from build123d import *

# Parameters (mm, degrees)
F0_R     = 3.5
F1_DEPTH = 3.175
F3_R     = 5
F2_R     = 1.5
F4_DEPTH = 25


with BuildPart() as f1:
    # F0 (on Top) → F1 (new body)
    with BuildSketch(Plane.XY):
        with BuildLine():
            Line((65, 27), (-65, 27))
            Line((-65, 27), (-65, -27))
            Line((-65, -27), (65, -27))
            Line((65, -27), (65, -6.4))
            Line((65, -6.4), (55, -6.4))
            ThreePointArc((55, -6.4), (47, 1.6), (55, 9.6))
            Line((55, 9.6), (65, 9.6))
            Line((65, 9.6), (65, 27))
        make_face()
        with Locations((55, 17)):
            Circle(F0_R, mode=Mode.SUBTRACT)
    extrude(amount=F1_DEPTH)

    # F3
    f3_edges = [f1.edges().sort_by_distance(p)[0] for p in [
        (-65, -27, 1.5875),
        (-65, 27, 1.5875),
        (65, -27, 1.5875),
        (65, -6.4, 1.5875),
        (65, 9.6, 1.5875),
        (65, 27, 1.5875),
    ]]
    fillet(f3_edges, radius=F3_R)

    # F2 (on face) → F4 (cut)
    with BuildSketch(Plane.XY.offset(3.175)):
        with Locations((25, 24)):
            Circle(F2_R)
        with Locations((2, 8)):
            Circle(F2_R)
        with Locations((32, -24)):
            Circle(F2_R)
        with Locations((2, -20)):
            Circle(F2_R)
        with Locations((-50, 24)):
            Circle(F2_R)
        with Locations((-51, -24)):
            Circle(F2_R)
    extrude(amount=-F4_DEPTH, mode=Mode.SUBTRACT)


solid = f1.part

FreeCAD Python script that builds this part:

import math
import FreeCAD as App
import Part
import Sketcher


def edges_at(feature, points):
    """Names of the edges that pass closest to the given points."""
    edges = feature.Shape.Edges
    near = lambda p: min(range(len(edges)), key=lambda i: edges[i].distToShape(Part.Vertex(*p))[0])
    return sorted({f"Edge{near(p) + 1}" for p in points})

doc = App.newDocument("Part")
body = doc.addObject("PartDesign::Body", "Body")

sketch1 = body.newObject("Sketcher::SketchObject", "Sketch")
sketch1.AttachmentSupport = (doc.getObject("XY_Plane"), [""])
sketch1.MapMode = "FlatFace"
sketch1.addGeometry(Part.LineSegment(App.Vector(65, 27, 0), App.Vector(-65, 27, 0)), False)
sketch1.addGeometry(Part.LineSegment(App.Vector(-65, 27, 0), App.Vector(-65, -27, 0)), False)
sketch1.addGeometry(Part.LineSegment(App.Vector(-65, -27, 0), App.Vector(65, -27, 0)), False)
sketch1.addGeometry(Part.LineSegment(App.Vector(65, -27, 0), App.Vector(65, -6.4, 0)), False)
sketch1.addGeometry(Part.LineSegment(App.Vector(65, -6.4, 0), App.Vector(55, -6.4, 0)), False)
sketch1.addGeometry(Part.ArcOfCircle(Part.Circle(App.Vector(55, 1.6, 0), App.Vector(0, 0, 1), 8), math.radians(90), math.radians(270)), False)
sketch1.addGeometry(Part.LineSegment(App.Vector(55, 9.6, 0), App.Vector(65, 9.6, 0)), False)
sketch1.addGeometry(Part.LineSegment(App.Vector(65, 9.6, 0), App.Vector(65, 27, 0)), False)
sketch1.addGeometry(Part.Circle(App.Vector(55, 17, 0), App.Vector(0, 0, 1), 3.5), False)
sketch1.addConstraint(Sketcher.Constraint("Coincident", 0, 2, 1, 1))
sketch1.addConstraint(Sketcher.Constraint("Coincident", 1, 2, 2, 1))
sketch1.addConstraint(Sketcher.Constraint("Coincident", 2, 2, 3, 1))
sketch1.addConstraint(Sketcher.Constraint("Coincident", 3, 2, 4, 1))
sketch1.addConstraint(Sketcher.Constraint("Tangent", 4, 2, 5, 2))
sketch1.addConstraint(Sketcher.Constraint("Tangent", 5, 1, 6, 1))
sketch1.addConstraint(Sketcher.Constraint("Coincident", 6, 2, 7, 1))
sketch1.addConstraint(Sketcher.Constraint("Coincident", 7, 2, 0, 1))
sketch1.addConstraint(Sketcher.Constraint("Horizontal", 0))
sketch1.addConstraint(Sketcher.Constraint("Vertical", 1))
sketch1.addConstraint(Sketcher.Constraint("Horizontal", 2))
sketch1.addConstraint(Sketcher.Constraint("Vertical", 3))
sketch1.addConstraint(Sketcher.Constraint("Horizontal", 4))
sketch1.addConstraint(Sketcher.Constraint("Horizontal", 6))
sketch1.addConstraint(Sketcher.Constraint("Vertical", 7))
sketch1.addConstraint(Sketcher.Constraint("Symmetric", 0, 2, 2, 2, -1, 1))
sketch1.addConstraint(Sketcher.Constraint("Vertical", 5, 3, 8, 3))
sketch1.addConstraint(Sketcher.Constraint("Vertical", 3, 2, 6, 2))
sketch1.addConstraint(Sketcher.Constraint("Diameter", 8, 7.0))
sketch1.addConstraint(Sketcher.Constraint("Radius", 5, 8.0))
sketch1.addConstraint(Sketcher.Constraint("DistanceX", 0, 2, 0, 1, 130.0))
sketch1.addConstraint(Sketcher.Constraint("DistanceX", 4, 2, 4, 1, 10.0))
sketch1.addConstraint(Sketcher.Constraint("DistanceY", 1, 2, 1, 1, 54.0))
sketch1.addConstraint(Sketcher.Constraint("DistanceY", 3, 1, 3, 2, 20.6))
sketch1.addConstraint(Sketcher.Constraint("DistanceY", -1, 1, 8, 3, 17.0))
pad1 = body.newObject("PartDesign::Pad", "Pad")
pad1.Profile = sketch1
pad1.Length = 3.175
doc.recompute()

fillet = body.newObject("PartDesign::Fillet", "Fillet")
fillet.Base = (pad1, edges_at(pad1, [
    (-65, -27, 1.587),
    (-65, 27, 1.587),
    (65, -27, 1.587),
    (65, -6.4, 1.587),
    (65, 9.6, 1.587),
    (65, 27, 1.587),
]))
fillet.Radius = 5

sketch2 = body.newObject("Sketcher::SketchObject", "Sketch001")
sketch2.AttachmentSupport = (doc.getObject("XY_Plane"), [""])
sketch2.MapMode = "FlatFace"
sketch2.AttachmentOffset = App.Placement(App.Vector(0, 0, 3.175), App.Rotation())
sketch2.addGeometry(Part.Circle(App.Vector(25, 24, 0), App.Vector(0, 0, 1), 1.5), False)
sketch2.addGeometry(Part.Circle(App.Vector(2, 8, 0), App.Vector(0, 0, 1), 1.5), False)
sketch2.addGeometry(Part.Circle(App.Vector(32, -24, 0), App.Vector(0, 0, 1), 1.5), False)
sketch2.addGeometry(Part.Circle(App.Vector(2, -20, 0), App.Vector(0, 0, 1), 1.5), False)
sketch2.addGeometry(Part.Circle(App.Vector(-50, 24, 0), App.Vector(0, 0, 1), 1.5), False)
sketch2.addGeometry(Part.Circle(App.Vector(-51, -24, 0), App.Vector(0, 0, 1), 1.5), False)
sketch2.addConstraint(Sketcher.Constraint("Equal", 0, 1))
sketch2.addConstraint(Sketcher.Constraint("Equal", 1, 2))
sketch2.addConstraint(Sketcher.Constraint("Equal", 2, 3))
sketch2.addConstraint(Sketcher.Constraint("Equal", 3, 4))
sketch2.addConstraint(Sketcher.Constraint("Equal", 4, 5))
sketch2.addConstraint(Sketcher.Constraint("Horizontal", 0, 3, 4, 3))
sketch2.addConstraint(Sketcher.Constraint("Horizontal", 2, 3, 5, 3))
sketch2.addConstraint(Sketcher.Constraint("Vertical", 1, 3, 3, 3))
sketch2.addConstraint(Sketcher.Constraint("Diameter", 0, 3.0))
sketch2.addConstraint(Sketcher.Constraint("DistanceX", -1, 1, 0, 3, 25.0))
sketch2.addConstraint(Sketcher.Constraint("DistanceY", -1, 1, 0, 3, 24.0))
sketch2.addConstraint(Sketcher.Constraint("DistanceX", -1, 1, 1, 3, 2.0))
sketch2.addConstraint(Sketcher.Constraint("DistanceY", -1, 1, 1, 3, 8.0))
sketch2.addConstraint(Sketcher.Constraint("DistanceX", -1, 1, 2, 3, 32.0))
sketch2.addConstraint(Sketcher.Constraint("DistanceY", 2, 3, -1, 1, 24.0))
sketch2.addConstraint(Sketcher.Constraint("DistanceY", 3, 3, -1, 1, 20.0))
sketch2.addConstraint(Sketcher.Constraint("DistanceX", 4, 3, -1, 1, 50.0))
sketch2.addConstraint(Sketcher.Constraint("DistanceX", 5, 3, -1, 1, 51.0))
pocket1 = body.newObject("PartDesign::Pocket", "Pocket")
pocket1.Profile = sketch2
pocket1.Length = 25

doc.recompute()
